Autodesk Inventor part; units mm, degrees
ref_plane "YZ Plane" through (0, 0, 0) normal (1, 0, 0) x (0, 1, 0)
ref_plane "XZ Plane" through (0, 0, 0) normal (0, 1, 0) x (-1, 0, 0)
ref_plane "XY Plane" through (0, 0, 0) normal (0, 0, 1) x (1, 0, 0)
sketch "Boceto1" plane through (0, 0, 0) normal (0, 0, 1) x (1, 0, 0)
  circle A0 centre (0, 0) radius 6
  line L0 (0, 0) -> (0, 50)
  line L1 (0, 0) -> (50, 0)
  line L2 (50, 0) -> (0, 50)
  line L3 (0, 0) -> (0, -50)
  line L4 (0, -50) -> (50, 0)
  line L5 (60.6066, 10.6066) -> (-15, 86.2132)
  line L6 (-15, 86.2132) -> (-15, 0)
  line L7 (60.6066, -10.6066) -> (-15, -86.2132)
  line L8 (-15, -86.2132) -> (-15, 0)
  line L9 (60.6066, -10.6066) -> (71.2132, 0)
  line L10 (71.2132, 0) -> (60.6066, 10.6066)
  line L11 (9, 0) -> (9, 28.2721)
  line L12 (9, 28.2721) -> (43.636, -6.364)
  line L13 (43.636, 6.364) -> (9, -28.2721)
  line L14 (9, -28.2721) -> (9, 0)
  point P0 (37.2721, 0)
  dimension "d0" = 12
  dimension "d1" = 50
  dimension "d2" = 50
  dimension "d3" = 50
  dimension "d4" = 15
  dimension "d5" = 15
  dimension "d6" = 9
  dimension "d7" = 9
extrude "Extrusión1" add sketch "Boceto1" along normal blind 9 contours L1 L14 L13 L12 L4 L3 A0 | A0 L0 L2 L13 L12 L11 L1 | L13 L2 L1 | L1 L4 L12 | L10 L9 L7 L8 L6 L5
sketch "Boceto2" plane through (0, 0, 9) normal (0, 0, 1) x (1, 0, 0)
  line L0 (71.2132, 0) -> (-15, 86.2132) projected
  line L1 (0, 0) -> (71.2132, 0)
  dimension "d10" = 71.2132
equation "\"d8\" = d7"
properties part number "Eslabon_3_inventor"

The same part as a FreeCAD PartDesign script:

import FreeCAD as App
import Part
import Sketcher

V = App.Vector

doc = App.newDocument("Part")
body = doc.addObject("PartDesign::Body", "Body")

# Sketch on XY plane
sketch1 = body.newObject("Sketcher::SketchObject", "Sketch")
sketch1.AttachmentSupport = (doc.getObject("XY_Plane"), [""])
sketch1.MapMode = "FlatFace"
sketch1.addGeometry(Part.LineSegment(V(71.2132, 0, 0), V(-15, 86.2132, 0)), False)
sketch1.addGeometry(Part.LineSegment(V(-15, 86.2132, 0), V(-15, -86.2132, 0)), False)
sketch1.addGeometry(Part.LineSegment(V(-15, -86.2132, 0), V(71.2132, 0, 0)), False)
sketch1.addGeometry(Part.LineSegment(V(9, -28.2721, 0), V(9, 28.2721, 0)), False)
sketch1.addGeometry(Part.LineSegment(V(9, 28.2721, 0), V(37.272018, 0, 0)), False)
sketch1.addGeometry(Part.LineSegment(V(37.272018, 0, 0), V(9, -28.2721, 0)), False)
sketch1.addGeometry(Part.Circle(V(0, 0, 0), V(0, 0, 1), 6), False)
sketch1.addConstraint(Sketcher.Constraint("Coincident", 0, 2, 1, 1))
sketch1.addConstraint(Sketcher.Constraint("Coincident", 1, 2, 2, 1))
sketch1.addConstraint(Sketcher.Constraint("Coincident", 2, 2, 0, 1))
sketch1.addConstraint(Sketcher.Constraint("Coincident", 3, 2, 4, 1))
sketch1.addConstraint(Sketcher.Constraint("Coincident", 4, 2, 5, 1))
sketch1.addConstraint(Sketcher.Constraint("Coincident", 5, 2, 3, 1))
sketch1.addConstraint(Sketcher.Constraint("Vertical", 1))
sketch1.addConstraint(Sketcher.Constraint("Vertical", 3))
sketch1.addConstraint(Sketcher.Constraint("Coincident", 6, 3, -1, 1))
sketch1.addConstraint(Sketcher.Constraint("PointOnObject", 2, 2, -1))
sketch1.addConstraint(Sketcher.Constraint("PointOnObject", 4, 2, -1))
sketch1.addConstraint(Sketcher.Constraint("Perpendicular", 0, 2))
sketch1.addConstraint(Sketcher.Constraint("Perpendicular", 2, 4))
sketch1.addConstraint(Sketcher.Constraint("Perpendicular", 4, 5))
sketch1.addConstraint(Sketcher.Constraint("Equal", 0, 2))
sketch1.addConstraint(Sketcher.Constraint("Diameter", 6, 12.0))
sketch1.addConstraint(Sketcher.Constraint("DistanceX", 0, 2, -1, 1, 15.0))
sketch1.addConstraint(Sketcher.Constraint("DistanceX", -1, 1, 3, 2, 9.0))
sketch1.addConstraint(Sketcher.Constraint("DistanceY", 1, 2, 1, 1, 172.4264))
sketch1.addConstraint(Sketcher.Constraint("DistanceY", 3, 1, 3, 2, 56.5442))
pad1 = body.newObject("PartDesign::Pad", "Pad")
pad1.Profile = sketch1
pad1.Length = 9

doc.recompute()
